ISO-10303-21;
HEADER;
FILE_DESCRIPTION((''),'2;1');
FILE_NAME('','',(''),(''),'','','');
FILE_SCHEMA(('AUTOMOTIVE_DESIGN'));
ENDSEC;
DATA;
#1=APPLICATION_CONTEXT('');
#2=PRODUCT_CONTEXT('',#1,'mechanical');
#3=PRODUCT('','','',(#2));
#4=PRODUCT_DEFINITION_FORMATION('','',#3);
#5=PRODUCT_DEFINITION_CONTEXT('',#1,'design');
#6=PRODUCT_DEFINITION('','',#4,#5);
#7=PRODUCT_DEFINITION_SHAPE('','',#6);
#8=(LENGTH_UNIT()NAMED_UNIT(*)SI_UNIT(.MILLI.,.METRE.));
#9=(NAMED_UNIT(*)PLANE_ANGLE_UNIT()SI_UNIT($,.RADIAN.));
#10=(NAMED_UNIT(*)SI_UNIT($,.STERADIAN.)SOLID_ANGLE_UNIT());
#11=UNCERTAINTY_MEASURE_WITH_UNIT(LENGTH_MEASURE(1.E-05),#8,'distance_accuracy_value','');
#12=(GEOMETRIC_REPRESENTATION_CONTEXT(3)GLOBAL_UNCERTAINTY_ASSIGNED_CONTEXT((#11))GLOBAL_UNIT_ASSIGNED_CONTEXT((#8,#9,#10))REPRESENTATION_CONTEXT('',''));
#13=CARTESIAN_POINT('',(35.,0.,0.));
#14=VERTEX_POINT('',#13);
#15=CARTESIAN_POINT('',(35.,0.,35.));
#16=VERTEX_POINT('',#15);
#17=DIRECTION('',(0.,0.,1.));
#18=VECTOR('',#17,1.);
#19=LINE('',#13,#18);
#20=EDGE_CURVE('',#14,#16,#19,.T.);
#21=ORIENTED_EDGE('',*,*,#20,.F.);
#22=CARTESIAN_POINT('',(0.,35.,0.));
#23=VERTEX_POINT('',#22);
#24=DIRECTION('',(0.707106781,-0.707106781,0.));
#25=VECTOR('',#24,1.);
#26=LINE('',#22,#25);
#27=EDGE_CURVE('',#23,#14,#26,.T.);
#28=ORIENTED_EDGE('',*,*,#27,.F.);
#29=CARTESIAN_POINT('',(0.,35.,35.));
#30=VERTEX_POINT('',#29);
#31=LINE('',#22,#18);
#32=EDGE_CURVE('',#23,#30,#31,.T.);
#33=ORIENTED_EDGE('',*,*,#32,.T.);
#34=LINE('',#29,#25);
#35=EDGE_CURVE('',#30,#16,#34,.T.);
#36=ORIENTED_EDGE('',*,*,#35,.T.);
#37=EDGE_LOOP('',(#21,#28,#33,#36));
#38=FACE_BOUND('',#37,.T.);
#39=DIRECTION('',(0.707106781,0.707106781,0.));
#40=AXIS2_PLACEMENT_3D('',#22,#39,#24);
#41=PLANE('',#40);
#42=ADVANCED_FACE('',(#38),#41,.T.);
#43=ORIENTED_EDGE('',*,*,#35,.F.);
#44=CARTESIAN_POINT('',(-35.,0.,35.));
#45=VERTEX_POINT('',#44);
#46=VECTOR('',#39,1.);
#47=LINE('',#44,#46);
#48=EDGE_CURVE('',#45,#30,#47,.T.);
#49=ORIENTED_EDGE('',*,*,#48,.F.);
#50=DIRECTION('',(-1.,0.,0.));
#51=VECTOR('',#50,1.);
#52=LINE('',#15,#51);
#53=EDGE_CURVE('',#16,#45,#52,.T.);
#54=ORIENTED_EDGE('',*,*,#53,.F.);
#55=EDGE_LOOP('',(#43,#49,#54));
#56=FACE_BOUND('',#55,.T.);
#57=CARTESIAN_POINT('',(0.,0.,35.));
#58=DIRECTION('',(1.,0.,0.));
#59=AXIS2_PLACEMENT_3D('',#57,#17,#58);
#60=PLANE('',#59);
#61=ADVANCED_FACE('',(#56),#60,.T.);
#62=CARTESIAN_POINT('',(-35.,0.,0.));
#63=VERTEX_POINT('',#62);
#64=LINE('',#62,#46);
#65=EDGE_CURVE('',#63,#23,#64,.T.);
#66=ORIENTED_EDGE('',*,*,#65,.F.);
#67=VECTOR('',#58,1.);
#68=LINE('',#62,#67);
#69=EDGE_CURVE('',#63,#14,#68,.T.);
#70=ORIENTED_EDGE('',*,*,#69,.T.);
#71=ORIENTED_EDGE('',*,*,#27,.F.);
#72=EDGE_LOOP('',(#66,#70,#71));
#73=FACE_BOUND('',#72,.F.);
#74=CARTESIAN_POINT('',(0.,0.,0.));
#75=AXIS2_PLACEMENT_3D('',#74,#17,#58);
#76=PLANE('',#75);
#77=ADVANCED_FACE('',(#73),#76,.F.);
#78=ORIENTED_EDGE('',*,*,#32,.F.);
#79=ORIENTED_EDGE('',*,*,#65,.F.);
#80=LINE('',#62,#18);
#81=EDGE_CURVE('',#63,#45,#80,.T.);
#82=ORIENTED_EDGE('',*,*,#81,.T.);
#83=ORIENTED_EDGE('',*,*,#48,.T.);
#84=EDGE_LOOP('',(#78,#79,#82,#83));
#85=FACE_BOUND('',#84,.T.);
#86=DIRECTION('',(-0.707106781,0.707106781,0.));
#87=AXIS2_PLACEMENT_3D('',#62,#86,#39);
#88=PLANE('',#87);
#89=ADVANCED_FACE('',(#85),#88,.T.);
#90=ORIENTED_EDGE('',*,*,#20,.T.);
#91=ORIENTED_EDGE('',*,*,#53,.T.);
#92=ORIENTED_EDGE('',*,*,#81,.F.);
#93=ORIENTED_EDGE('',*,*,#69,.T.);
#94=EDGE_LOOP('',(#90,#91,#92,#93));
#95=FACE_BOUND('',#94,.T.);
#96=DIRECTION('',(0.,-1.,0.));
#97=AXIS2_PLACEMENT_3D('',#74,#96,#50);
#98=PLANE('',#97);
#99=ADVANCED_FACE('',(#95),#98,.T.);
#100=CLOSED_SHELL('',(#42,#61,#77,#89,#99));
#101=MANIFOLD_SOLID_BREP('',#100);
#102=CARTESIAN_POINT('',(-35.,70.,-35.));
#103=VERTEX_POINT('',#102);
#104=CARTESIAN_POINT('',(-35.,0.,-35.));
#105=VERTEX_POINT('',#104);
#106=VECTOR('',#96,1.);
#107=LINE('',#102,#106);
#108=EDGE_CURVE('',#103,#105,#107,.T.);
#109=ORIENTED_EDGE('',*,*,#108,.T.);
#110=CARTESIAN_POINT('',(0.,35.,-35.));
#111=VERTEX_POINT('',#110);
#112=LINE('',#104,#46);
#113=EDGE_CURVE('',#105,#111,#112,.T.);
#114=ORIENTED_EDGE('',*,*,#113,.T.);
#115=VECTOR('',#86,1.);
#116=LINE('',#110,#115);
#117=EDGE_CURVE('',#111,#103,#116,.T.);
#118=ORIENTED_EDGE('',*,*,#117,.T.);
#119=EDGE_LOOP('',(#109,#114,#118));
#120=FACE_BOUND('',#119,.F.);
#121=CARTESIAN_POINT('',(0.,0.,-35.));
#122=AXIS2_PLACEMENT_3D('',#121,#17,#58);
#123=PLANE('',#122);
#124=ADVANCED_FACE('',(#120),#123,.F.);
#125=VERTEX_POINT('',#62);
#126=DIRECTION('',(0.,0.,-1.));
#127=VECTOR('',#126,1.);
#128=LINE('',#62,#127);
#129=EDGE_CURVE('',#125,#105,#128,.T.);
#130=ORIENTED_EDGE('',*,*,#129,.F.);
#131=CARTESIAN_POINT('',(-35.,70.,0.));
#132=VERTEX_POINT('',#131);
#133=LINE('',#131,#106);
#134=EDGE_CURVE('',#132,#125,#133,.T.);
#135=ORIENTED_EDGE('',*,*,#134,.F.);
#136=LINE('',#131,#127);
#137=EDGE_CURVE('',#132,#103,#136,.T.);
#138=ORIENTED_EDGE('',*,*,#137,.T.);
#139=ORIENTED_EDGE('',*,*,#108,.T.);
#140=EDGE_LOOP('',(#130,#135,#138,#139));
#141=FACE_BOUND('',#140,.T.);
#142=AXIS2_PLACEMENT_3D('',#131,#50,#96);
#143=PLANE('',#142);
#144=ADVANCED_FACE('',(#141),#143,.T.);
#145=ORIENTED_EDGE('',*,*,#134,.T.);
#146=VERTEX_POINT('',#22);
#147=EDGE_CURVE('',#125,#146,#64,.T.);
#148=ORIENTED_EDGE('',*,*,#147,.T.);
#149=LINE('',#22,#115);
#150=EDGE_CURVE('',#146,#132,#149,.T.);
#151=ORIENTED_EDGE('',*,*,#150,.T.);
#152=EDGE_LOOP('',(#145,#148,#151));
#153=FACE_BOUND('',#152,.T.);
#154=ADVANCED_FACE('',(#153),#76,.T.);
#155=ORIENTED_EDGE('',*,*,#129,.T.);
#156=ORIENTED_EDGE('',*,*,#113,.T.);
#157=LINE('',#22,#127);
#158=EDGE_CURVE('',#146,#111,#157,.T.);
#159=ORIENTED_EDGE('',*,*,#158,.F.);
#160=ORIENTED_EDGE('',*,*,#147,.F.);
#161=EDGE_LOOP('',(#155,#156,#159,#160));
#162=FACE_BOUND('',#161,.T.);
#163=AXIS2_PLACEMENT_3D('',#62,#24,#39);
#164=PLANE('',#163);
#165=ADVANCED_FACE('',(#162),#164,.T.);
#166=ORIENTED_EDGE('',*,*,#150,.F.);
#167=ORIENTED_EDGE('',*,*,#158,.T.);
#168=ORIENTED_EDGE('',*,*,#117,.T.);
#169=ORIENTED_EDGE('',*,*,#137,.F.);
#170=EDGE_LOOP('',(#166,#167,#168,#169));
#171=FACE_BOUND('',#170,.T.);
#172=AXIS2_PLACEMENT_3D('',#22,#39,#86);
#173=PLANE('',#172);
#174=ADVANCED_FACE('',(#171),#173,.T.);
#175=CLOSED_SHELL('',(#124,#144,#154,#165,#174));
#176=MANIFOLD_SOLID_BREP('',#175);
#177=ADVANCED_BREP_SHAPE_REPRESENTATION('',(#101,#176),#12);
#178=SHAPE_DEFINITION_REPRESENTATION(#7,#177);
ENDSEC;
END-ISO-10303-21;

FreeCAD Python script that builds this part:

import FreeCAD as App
import Part
import Sketcher

V = App.Vector
Q = App.Units.Quantity


def add_polygon(sketch, points):
    """Adds a closed chain of lines whose ends are joined by coincident constraints."""
    first, n = sketch.GeometryCount, len(points)
    for a, b in zip(points, points[1:] + points[:1]):
        sketch.addGeometry(Part.LineSegment(App.Vector(*a, 0), App.Vector(*b, 0)), False)
    for i in range(n):
        sketch.addConstraint(Sketcher.Constraint("Coincident", first + i, 2, first + (i + 1) % n, 1))

doc = App.newDocument("Part")
body = doc.addObject("PartDesign::Body", "Body")
body.AllowCompound = True

# Sketch on XY plane
sketch1 = doc.addObject("Sketcher::SketchObject", "Sketch")
body.addObject(sketch1)
sketch1.AttachmentSupport = (doc.XY_Plane, [""])
sketch1.MapMode = "FlatFace"
add_polygon(sketch1, [(0, 35), (-35, 0), (35, 0)])  # lines 0-2
sketch1.addConstraint(Sketcher.Constraint("Horizontal", 1))
sketch1.addConstraint(Sketcher.Constraint("Symmetric", 0, 2, 1, 2, -1, 1))
sketch1.addConstraint(Sketcher.Constraint("PointOnObject", 2, 2, -2))
sketch1.addConstraint(Sketcher.Constraint("Perpendicular", 0, 2))
sketch1.addConstraint(Sketcher.Constraint("DistanceX", 0, 2, -1, 1, Q("35 mm")))
pad1 = doc.addObject("PartDesign::Pad", "Pad")
body.addObject(pad1)
pad1.Profile = sketch1
pad1.Length = 35

# Sketch on XY plane
sketch2 = doc.addObject("Sketcher::SketchObject", "Sketch001")
body.addObject(sketch2)
sketch2.AttachmentSupport = (doc.XY_Plane, [""])
sketch2.MapMode = "FlatFace"
add_polygon(sketch2, [(-35, 70), (-35, 0), (0, 35)])  # lines 0-2
sketch2.addConstraint(Sketcher.Constraint("Vertical", 0))
sketch2.addConstraint(Sketcher.Constraint("PointOnObject", 0, 2, -1))
sketch2.addConstraint(Sketcher.Constraint("PointOnObject", 1, 2, -2))
sketch2.addConstraint(Sketcher.Constraint("Perpendicular", 1, 2))
sketch2.addConstraint(Sketcher.Constraint("Equal", 1, 2))
sketch2.addConstraint(Sketcher.Constraint("DistanceX", 0, 2, -1, 1, Q("35 mm")))
pad2 = doc.addObject("PartDesign::Pad", "Pad001")
body.addObject(pad2)
pad2.Profile = sketch2
pad2.Length = 35
pad2.Reversed = True

doc.recompute()
